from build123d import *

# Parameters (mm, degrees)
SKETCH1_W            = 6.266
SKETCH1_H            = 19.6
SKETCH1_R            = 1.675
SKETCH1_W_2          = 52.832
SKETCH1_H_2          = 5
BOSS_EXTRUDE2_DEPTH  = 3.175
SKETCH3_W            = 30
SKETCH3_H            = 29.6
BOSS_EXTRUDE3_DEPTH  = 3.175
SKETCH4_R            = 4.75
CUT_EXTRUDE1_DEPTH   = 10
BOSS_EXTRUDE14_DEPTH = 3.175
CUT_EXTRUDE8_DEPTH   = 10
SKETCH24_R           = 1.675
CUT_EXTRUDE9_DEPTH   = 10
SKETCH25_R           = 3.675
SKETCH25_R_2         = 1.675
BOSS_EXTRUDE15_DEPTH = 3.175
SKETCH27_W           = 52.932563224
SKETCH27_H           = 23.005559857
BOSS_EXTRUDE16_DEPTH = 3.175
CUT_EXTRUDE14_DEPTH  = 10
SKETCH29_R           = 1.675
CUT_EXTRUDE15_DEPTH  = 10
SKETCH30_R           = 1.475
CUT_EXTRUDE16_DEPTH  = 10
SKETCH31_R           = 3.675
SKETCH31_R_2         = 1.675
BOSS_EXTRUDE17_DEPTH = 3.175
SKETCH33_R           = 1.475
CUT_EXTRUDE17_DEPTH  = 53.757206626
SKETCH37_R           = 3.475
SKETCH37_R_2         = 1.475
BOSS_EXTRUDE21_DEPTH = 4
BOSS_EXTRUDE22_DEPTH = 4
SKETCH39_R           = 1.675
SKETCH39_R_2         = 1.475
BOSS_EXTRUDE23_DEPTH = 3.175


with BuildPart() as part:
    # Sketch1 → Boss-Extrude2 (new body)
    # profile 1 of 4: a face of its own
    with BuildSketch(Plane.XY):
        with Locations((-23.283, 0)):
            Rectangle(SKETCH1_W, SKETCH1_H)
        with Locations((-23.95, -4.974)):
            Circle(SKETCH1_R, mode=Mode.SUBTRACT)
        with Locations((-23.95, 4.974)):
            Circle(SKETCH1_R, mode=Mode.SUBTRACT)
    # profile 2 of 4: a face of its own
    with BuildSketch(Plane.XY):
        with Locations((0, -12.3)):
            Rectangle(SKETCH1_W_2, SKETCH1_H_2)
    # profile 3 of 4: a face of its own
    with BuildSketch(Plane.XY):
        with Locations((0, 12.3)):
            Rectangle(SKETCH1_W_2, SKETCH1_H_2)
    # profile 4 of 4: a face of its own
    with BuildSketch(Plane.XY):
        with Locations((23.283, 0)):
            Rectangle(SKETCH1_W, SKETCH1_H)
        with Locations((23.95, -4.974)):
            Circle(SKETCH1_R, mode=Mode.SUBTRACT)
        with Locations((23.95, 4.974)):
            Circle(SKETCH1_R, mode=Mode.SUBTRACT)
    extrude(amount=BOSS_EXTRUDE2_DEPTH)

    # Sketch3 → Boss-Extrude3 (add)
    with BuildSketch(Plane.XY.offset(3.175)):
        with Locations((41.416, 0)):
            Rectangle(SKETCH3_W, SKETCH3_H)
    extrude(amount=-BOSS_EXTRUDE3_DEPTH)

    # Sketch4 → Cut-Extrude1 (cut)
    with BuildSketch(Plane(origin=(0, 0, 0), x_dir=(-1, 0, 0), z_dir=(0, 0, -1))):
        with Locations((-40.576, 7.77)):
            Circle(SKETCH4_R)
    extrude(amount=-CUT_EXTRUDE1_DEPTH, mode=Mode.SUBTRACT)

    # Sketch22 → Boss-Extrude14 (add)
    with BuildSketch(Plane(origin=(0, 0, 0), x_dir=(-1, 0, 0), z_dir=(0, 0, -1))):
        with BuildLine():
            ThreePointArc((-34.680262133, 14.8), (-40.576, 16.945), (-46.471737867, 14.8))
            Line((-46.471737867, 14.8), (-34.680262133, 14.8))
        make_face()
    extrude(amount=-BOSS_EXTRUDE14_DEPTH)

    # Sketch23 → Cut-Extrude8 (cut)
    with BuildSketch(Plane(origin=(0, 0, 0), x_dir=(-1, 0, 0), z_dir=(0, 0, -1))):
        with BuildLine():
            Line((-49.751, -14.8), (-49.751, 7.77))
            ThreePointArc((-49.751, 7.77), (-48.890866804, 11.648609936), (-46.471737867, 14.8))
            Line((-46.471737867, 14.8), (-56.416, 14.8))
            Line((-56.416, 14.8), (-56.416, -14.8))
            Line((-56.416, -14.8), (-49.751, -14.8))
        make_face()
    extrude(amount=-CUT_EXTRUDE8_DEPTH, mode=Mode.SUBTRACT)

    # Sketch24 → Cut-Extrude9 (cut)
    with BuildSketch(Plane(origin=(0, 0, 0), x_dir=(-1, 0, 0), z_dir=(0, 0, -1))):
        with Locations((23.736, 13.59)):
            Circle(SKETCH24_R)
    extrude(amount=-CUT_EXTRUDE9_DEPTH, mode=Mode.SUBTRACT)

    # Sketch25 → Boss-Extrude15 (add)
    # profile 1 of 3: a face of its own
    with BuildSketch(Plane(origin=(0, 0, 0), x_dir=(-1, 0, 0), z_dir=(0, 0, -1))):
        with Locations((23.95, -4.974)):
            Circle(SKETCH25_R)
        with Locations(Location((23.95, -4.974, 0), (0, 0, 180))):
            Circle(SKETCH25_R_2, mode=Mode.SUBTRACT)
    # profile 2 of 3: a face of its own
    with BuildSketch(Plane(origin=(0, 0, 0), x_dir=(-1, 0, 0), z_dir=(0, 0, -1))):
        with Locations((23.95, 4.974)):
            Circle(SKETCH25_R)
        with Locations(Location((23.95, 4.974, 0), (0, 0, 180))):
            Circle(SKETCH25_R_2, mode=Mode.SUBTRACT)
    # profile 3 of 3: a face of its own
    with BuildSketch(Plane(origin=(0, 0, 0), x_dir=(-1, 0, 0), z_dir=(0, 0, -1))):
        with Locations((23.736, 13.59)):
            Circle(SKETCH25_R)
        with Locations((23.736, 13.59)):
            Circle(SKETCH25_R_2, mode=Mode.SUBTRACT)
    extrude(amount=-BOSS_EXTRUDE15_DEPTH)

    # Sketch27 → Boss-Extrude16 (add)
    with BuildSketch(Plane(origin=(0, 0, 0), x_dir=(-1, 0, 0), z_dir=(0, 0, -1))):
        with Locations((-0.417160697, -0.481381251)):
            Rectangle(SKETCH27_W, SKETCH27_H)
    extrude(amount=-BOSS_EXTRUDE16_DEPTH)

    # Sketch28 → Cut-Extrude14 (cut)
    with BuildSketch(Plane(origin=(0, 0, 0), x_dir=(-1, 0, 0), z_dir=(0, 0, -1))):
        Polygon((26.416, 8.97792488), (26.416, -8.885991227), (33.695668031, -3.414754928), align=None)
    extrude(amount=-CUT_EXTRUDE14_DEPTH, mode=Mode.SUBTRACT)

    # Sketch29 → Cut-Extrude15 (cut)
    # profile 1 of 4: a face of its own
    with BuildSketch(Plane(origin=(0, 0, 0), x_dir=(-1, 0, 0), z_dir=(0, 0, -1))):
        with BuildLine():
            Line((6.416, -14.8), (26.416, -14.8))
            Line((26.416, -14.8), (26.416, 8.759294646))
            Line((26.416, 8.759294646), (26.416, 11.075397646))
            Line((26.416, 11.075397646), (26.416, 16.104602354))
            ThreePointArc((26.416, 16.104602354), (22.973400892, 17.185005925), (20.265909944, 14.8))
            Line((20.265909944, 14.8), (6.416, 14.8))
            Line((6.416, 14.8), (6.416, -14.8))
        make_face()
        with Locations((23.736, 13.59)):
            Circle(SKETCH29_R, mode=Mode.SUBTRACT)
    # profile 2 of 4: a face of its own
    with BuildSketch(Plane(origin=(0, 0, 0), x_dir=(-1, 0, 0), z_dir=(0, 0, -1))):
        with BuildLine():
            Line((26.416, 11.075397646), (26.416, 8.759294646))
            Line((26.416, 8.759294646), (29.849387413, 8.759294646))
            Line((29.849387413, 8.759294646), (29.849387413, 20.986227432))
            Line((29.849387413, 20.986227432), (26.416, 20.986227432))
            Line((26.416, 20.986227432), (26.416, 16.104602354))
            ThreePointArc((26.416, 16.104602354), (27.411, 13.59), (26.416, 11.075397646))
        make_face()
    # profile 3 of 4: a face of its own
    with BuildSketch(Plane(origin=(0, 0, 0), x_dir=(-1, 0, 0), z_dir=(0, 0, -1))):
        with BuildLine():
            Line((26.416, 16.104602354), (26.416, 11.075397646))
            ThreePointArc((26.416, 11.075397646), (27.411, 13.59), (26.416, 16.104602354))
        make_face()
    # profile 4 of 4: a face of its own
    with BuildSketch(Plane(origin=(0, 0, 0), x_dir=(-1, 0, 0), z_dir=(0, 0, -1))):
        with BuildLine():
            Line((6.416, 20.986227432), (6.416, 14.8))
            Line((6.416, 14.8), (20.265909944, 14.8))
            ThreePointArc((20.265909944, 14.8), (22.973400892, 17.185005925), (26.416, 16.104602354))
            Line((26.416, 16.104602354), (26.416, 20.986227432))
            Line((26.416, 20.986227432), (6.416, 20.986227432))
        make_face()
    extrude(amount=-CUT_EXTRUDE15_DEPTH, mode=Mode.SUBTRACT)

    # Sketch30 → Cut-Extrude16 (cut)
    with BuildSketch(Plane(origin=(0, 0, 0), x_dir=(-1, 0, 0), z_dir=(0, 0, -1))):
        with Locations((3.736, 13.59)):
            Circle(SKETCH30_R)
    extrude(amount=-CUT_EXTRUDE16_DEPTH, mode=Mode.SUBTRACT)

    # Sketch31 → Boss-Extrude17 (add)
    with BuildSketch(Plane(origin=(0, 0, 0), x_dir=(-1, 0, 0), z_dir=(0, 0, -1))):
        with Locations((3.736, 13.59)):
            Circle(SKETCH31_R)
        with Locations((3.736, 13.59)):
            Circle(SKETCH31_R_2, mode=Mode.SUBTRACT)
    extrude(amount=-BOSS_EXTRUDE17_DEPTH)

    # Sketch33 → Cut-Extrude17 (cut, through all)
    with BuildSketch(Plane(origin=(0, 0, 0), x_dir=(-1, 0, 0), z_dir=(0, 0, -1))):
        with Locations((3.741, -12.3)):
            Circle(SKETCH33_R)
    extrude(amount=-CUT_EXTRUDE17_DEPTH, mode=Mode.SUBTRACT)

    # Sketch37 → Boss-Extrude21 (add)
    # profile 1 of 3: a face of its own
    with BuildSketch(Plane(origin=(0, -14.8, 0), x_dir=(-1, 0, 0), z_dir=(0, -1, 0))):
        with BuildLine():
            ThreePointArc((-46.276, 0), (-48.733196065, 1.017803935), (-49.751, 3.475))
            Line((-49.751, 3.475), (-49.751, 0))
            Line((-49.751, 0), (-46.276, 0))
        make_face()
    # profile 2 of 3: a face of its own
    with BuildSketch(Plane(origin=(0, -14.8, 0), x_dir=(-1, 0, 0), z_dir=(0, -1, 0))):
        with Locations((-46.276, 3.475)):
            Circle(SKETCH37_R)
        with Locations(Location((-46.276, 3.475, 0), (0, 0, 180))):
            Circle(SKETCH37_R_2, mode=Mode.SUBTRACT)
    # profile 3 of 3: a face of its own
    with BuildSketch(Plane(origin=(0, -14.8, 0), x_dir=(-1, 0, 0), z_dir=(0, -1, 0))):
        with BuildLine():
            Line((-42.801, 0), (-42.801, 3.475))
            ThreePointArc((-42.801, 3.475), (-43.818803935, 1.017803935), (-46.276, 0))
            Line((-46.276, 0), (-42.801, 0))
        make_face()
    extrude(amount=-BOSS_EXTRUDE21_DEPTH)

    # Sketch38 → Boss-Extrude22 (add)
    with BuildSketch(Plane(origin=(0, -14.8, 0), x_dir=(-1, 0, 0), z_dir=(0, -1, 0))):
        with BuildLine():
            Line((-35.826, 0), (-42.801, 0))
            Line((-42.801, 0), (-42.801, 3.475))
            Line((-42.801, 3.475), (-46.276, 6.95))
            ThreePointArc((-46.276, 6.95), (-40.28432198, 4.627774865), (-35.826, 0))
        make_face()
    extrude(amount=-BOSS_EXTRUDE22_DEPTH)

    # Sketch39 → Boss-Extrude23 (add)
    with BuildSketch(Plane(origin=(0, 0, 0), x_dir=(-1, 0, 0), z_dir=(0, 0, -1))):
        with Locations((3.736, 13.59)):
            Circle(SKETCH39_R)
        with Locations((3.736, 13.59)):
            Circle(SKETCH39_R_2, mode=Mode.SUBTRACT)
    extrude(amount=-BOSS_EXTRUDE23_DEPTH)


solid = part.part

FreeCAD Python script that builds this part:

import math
import FreeCAD as App
import Part
import Sketcher

V = App.Vector
Q = App.Units.Quantity

doc = App.newDocument("Part")
params = doc.addObject("Spreadsheet::Sheet", "Params")
for row, (alias, value) in enumerate([
    ("sketch1_diameter", "3.35 mm"),
    ("sketch1_width", "40.3 mm"),
    ("sketch1_height", "29.6 mm"),
    ("sketch1_height2", "19.6 mm"),
    ("pad1_length", "3.175 mm"),
    ("sketch2_width", "30 mm"),
    ("sketch2_height", "29.6 mm"),
    ("pad2_length", "3.175 mm"),
    ("sketch3_diameter", "9.5 mm"),
    ("pocket1_length", "10 mm"),
    ("pad3_length", "3.175 mm"),
    ("sketch5_height", "29.6 mm"),
    ("sketch5_height2", "22.57 mm"),
    ("pocket2_length", "10 mm"),
    ("sketch6_diameter", "3.35 mm"),
    ("pocket3_length", "10 mm"),
    ("sketch7_diameter", "7.35 mm"),
    ("sketch7_diameter2", "3.35 mm"),
    ("pad4_length", "3.175 mm"),
    ("pad5_length", "3.175 mm"),
    ("pocket4_length", "10 mm"),
    ("sketch10_diameter", "3.35 mm"),
    ("sketch10_width", "20 mm"),
    ("pocket5_length", "10 mm"),
    ("sketch11_diameter", "2.95 mm"),
    ("pocket6_length", "10 mm"),
    ("sketch12_diameter", "7.35 mm"),
    ("sketch12_diameter2", "3.35 mm"),
    ("pad6_length", "3.175 mm"),
    ("sketch13_diameter", "2.95 mm"),
    ("sketch14_diameter", "2.95 mm"),
    ("pad7_length", "4 mm"),
    ("pad8_length", "4 mm"),
    ("sketch16_diameter", "3.35 mm"),
    ("sketch16_diameter2", "2.95 mm"),
    ("pad9_length", "3.175 mm"),
], start=1):
    params.set(f"A{row}", alias)
    params.set(f"B{row}", "=" + value)
    params.setAlias(f"B{row}", alias)

body = doc.addObject("PartDesign::Body", "Body")

# Sketch on XY plane
sketch1 = body.newObject("Sketcher::SketchObject", "Sketch")
sketch1.AttachmentSupport = (doc.getObject("XY_Plane"), [""])
sketch1.MapMode = "FlatFace"
sketch1.addGeometry([
    Part.LineSegment(V(-26.4, -14.8, 0), V(26.4, -14.8, 0)),  # 0
    Part.LineSegment(V(26.4, -14.8, 0), V(26.4, 14.8, 0)),  # 1
    Part.LineSegment(V(26.4, 14.8, 0), V(-26.4, 14.8, 0)),  # 2
    Part.LineSegment(V(-26.4, 14.8, 0), V(-26.4, -14.8, 0)),  # 3
    Part.LineSegment(V(-20.1, -9.8, 0), V(-20.1, 9.8, 0)),  # 4
    Part.LineSegment(V(-20.1, 9.8, 0), V(20.1, 9.8, 0)),  # 5
    Part.LineSegment(V(20.1, 9.8, 0), V(20.1, -9.8, 0)),  # 6
    Part.LineSegment(V(20.1, -9.8, 0), V(-20.1, -9.8, 0)),  # 7
    Part.Circle(V(-23.9, -5, 0), V(0, 0, 1), 1.7),  # 8
    Part.Circle(V(-23.9, 5, 0), V(0, 0, 1), 1.7),  # 9
    Part.Circle(V(23.9, 5, 0), V(0, 0, 1), 1.7),  # 10
    Part.Circle(V(23.9, -5, 0), V(0, 0, 1), 1.7),  # 11
], False)
sketch1.addConstraint([
    Sketcher.Constraint("Coincident", 0, 2, 1, 1),
    Sketcher.Constraint("Coincident", 1, 2, 2, 1),
    Sketcher.Constraint("Coincident", 2, 2, 3, 1),
    Sketcher.Constraint("Coincident", 3, 2, 0, 1),
    Sketcher.Constraint("Coincident", 4, 2, 5, 1),
    Sketcher.Constraint("Coincident", 5, 2, 6, 1),
    Sketcher.Constraint("Coincident", 6, 2, 7, 1),
    Sketcher.Constraint("Coincident", 7, 2, 4, 1),
    Sketcher.Constraint("Horizontal", 0),
    Sketcher.Constraint("Vertical", 1),
    Sketcher.Constraint("Horizontal", 2),
    Sketcher.Constraint("Vertical", 3),
    Sketcher.Constraint("Vertical", 4),
    Sketcher.Constraint("Horizontal", 5),
    Sketcher.Constraint("Vertical", 6),
    Sketcher.Constraint("Horizontal", 7),
    Sketcher.Constraint("Equal", 8, 9),
    Sketcher.Constraint("Equal", 9, 10),
    Sketcher.Constraint("Equal", 10, 11),
    Sketcher.Constraint("Symmetric", 8, 3, 10, 3, -1, 1),
    Sketcher.Constraint("Symmetric", 9, 3, 11, 3, -1, 1),
    Sketcher.Constraint("Symmetric", 0, 2, 2, 2, -1, 1),
    Sketcher.Constraint("Symmetric", 4, 2, 6, 2, -1, 1),
    Sketcher.Constraint("Symmetric", 9, 3, 10, 3, -2),
    Sketcher.Constraint("Diameter", 8, Q("3.35 mm")),
    Sketcher.Constraint("DistanceX", 5, 1, 5, 2, Q("40.3 mm")),
    Sketcher.Constraint("DistanceY", 1, 1, 1, 2, Q("29.6 mm")),
    Sketcher.Constraint("DistanceY", 4, 1, 4, 2, Q("19.6 mm")),
    Sketcher.Constraint("DistanceX", 9, 3, 10, 3, Q("47.9 mm")),
    Sketcher.Constraint("DistanceX", 0, 1, 0, 2, Q("52.832 mm")),
    Sketcher.Constraint("DistanceY", 8, 3, -1, 1, Q("4.974 mm")),
])
sketch1.setExpression("Constraints[24]", "Params.sketch1_diameter")
sketch1.setExpression("Constraints[25]", "Params.sketch1_width")
sketch1.setExpression("Constraints[26]", "Params.sketch1_height")
sketch1.setExpression("Constraints[27]", "Params.sketch1_height2")
pad1 = body.newObject("PartDesign::Pad", "Pad")
pad1.Profile = sketch1
pad1.setExpression("Length", "Params.pad1_length")

# Sketch on XY plane
sketch2 = body.newObject("Sketcher::SketchObject", "Sketch001")
sketch2.AttachmentSupport = (doc.getObject("XY_Plane"), [""])
sketch2.MapMode = "FlatFace"
sketch2.AttachmentOffset = App.Placement(V(0, 0, 3.175), App.Rotation())
sketch2.addGeometry([
    Part.LineSegment(V(26, 15, 0), V(26, -15, 0)),
    Part.LineSegment(V(26, -15, 0), V(56, -15, 0)),
    Part.LineSegment(V(56, -15, 0), V(56, 15, 0)),
    Part.LineSegment(V(56, 15, 0), V(26, 15, 0)),
], False)
sketch2.addConstraint([
    Sketcher.Constraint("Coincident", 0, 2, 1, 1),
    Sketcher.Constraint("Coincident", 1, 2, 2, 1),
    Sketcher.Constraint("Coincident", 2, 2, 3, 1),
    Sketcher.Constraint("Coincident", 3, 2, 0, 1),
    Sketcher.Constraint("Vertical", 0),
    Sketcher.Constraint("Horizontal", 1),
    Sketcher.Constraint("Vertical", 2),
    Sketcher.Constraint("Horizontal", 3),
    Sketcher.Constraint("DistanceX", 1, 1, 1, 2, Q("30 mm")),
    Sketcher.Constraint("DistanceY", 0, 2, 0, 1, Q("29.6 mm")),
    Sketcher.Constraint("DistanceY", 0, 2, -1, 1, Q("14.8 mm")),
    Sketcher.Constraint("DistanceX", -1, 1, 0, 2, Q("26.416 mm")),
])
sketch2.setExpression("Constraints[8]", "Params.sketch2_width")
sketch2.setExpression("Constraints[9]", "Params.sketch2_height")
pad2 = body.newObject("PartDesign::Pad", "Pad001")
pad2.Profile = sketch2
pad2.setExpression("Length", "Params.pad2_length")
pad2.Reversed = True

# Sketch on XY plane
sketch3 = body.newObject("Sketcher::SketchObject", "Sketch002")
sketch3.AttachmentSupport = (doc.getObject("XY_Plane"), [""])
sketch3.MapMode = "FlatFace"
sketch3.addGeometry(Part.Circle(V(40.6, 7.8, 0), V(0, 0, 1), 4.8), False)
sketch3.addConstraint([
    Sketcher.Constraint("Diameter", 0, Q("9.5 mm")),
    Sketcher.Constraint("DistanceY", -1, 1, 0, 3, Q("7.77 mm")),
    Sketcher.Constraint("DistanceX", -1, 1, 0, 3, Q("40.576 mm")),
])
sketch3.setExpression("Constraints[0]", "Params.sketch3_diameter")
pocket1 = body.newObject("PartDesign::Pocket", "Pocket")
pocket1.Profile = sketch3
pocket1.setExpression("Length", "Params.pocket1_length")
pocket1.Reversed = True

# Sketch on XY plane
sketch4 = body.newObject("Sketcher::SketchObject", "Sketch003")
sketch4.AttachmentSupport = (doc.getObject("XY_Plane"), [""])
sketch4.MapMode = "FlatFace"
sketch4.addGeometry([
    Part.ArcOfCircle(Part.Circle(V(41, 8, 0), V(0, 0, 1), 9), math.radians(50), math.radians(130)),
    Part.LineSegment(V(46, 15, 0), V(35, 15, 0)),
], False)
sketch4.addConstraint([
    Sketcher.Constraint("Coincident", 0, 1, 1, 1),
    Sketcher.Constraint("Coincident", 1, 2, 0, 2),
    Sketcher.Constraint("Horizontal", 1),
    Sketcher.Constraint("Radius", 0, Q("9.175 mm")),
    Sketcher.Constraint("DistanceY", -1, 1, 0, 1, Q("14.8 mm")),
    Sketcher.Constraint("DistanceY", -1, 1, 0, 3, Q("7.77 mm")),
    Sketcher.Constraint("DistanceX", -1, 1, 0, 3, Q("40.576 mm")),
])
pad3 = body.newObject("PartDesign::Pad", "Pad002")
pad3.Profile = sketch4
pad3.setExpression("Length", "Params.pad3_length")

# Sketch on XY plane
sketch5 = body.newObject("Sketcher::SketchObject", "Sketch004")
sketch5.AttachmentSupport = (doc.getObject("XY_Plane"), [""])
sketch5.MapMode = "FlatFace"
sketch5.addGeometry([
    Part.LineSegment(V(50, -15, 0), V(50, 8, 0)),  # 0
    Part.ArcOfCircle(Part.Circle(V(41, 8, 0), V(0, 0, 1), 9), math.radians(0), math.radians(50)),  # 1
    Part.LineSegment(V(46, 15, 0), V(56, 15, 0)),  # 2
    Part.LineSegment(V(56, 15, 0), V(56, -15, 0)),  # 3
    Part.LineSegment(V(56, -15, 0), V(50, -15, 0)),  # 4
], False)
sketch5.addConstraint([
    Sketcher.Constraint("Tangent", 0, 2, 1, 1),
    Sketcher.Constraint("Coincident", 1, 2, 2, 1),
    Sketcher.Constraint("Coincident", 2, 2, 3, 1),
    Sketcher.Constraint("Coincident", 3, 2, 4, 1),
    Sketcher.Constraint("Coincident", 4, 2, 0, 1),
    Sketcher.Constraint("Vertical", 0),
    Sketcher.Constraint("Horizontal", 2),
    Sketcher.Constraint("Vertical", 3),
    Sketcher.Constraint("Horizontal", 4),
    Sketcher.Constraint("DistanceY", 3, 2, 3, 1, Q("29.6 mm")),
    Sketcher.Constraint("Radius", 1, Q("9.175 mm")),
    Sketcher.Constraint("DistanceY", 0, 1, 0, 2, Q("22.57 mm")),
    Sketcher.Constraint("DistanceY", -1, 1, 1, 2, Q("14.8 mm")),
    Sketcher.Constraint("DistanceX", 4, 2, 4, 1, Q("6.665 mm")),
    Sketcher.Constraint("DistanceX", -1, 1, 1, 3, Q("40.576 mm")),
])
sketch5.setExpression("Constraints[9]", "Params.sketch5_height")
sketch5.setExpression("Constraints[11]", "Params.sketch5_height2")
pocket2 = body.newObject("PartDesign::Pocket", "Pocket001")
pocket2.Profile = sketch5
pocket2.setExpression("Length", "Params.pocket2_length")
pocket2.Reversed = True

# Sketch on XY plane
sketch6 = body.newObject("Sketcher::SketchObject", "Sketch005")
sketch6.AttachmentSupport = (doc.getObject("XY_Plane"), [""])
sketch6.MapMode = "FlatFace"
sketch6.addGeometry(Part.Circle(V(-23.7, 13.6, 0), V(0, 0, 1), 1.7), False)
sketch6.addConstraint([
    Sketcher.Constraint("Diameter", 0, Q("3.35 mm")),
    Sketcher.Constraint("DistanceY", -1, 1, 0, 3, Q("13.59 mm")),
    Sketcher.Constraint("DistanceX", 0, 3, -1, 1, Q("23.736 mm")),
])
sketch6.setExpression("Constraints[0]", "Params.sketch6_diameter")
pocket3 = body.newObject("PartDesign::Pocket", "Pocket002")
pocket3.Profile = sketch6
pocket3.setExpression("Length", "Params.pocket3_length")
pocket3.Reversed = True

# Sketch on XY plane
sketch7 = body.newObject("Sketcher::SketchObject", "Sketch006")
sketch7.AttachmentSupport = (doc.getObject("XY_Plane"), [""])
sketch7.MapMode = "FlatFace"
sketch7.addGeometry([
    Part.Circle(V(-23.9, -5, 0), V(0, 0, 1), 3.7),  # 0
    Part.Circle(V(-23.9, -5, 0), V(0, 0, 1), 1.7),  # 1
    Part.Circle(V(-23.9, 5, 0), V(0, 0, 1), 3.7),  # 2
    Part.Circle(V(-23.9, 5, 0), V(0, 0, 1), 1.7),  # 3
    Part.Circle(V(-23.7, 13.6, 0), V(0, 0, 1), 3.7),  # 4
    Part.Circle(V(-23.7, 13.6, 0), V(0, 0, 1), 1.7),  # 5
], False)
sketch7.addConstraint([
    Sketcher.Constraint("Coincident", 1, 3, 0, 3),
    Sketcher.Constraint("Coincident", 3, 3, 2, 3),
    Sketcher.Constraint("Coincident", 5, 3, 4, 3),
    Sketcher.Constraint("Equal", 0, 2),
    Sketcher.Constraint("Equal", 1, 3),
    Sketcher.Constraint("Equal", 2, 4),
    Sketcher.Constraint("Equal", 3, 5),
    Sketcher.Constraint("Symmetric", 0, 3, 2, 3, -1),
    Sketcher.Constraint("Diameter", 0, Q("7.35 mm")),
    Sketcher.Constraint("Diameter", 1, Q("3.35 mm")),
    Sketcher.Constraint("DistanceX", 0, 3, -1, 1, Q("23.95 mm")),
    Sketcher.Constraint("DistanceY", -1, 1, 4, 3, Q("13.59 mm")),
    Sketcher.Constraint("DistanceY", 0, 3, -1, 1, Q("4.974 mm")),
    Sketcher.Constraint("DistanceX", 4, 3, -1, 1, Q("23.736 mm")),
])
sketch7.setExpression("Constraints[8]", "Params.sketch7_diameter")
sketch7.setExpression("Constraints[9]", "Params.sketch7_diameter2")
pad4 = body.newObject("PartDesign::Pad", "Pad003")
pad4.Profile = sketch7
pad4.setExpression("Length", "Params.pad4_length")

# Sketch on XY plane
sketch8 = body.newObject("Sketcher::SketchObject", "Sketch007")
sketch8.AttachmentSupport = (doc.getObject("XY_Plane"), [""])
sketch8.MapMode = "FlatFace"
sketch8.addGeometry([
    Part.LineSegment(V(27, 11, 0), V(27, -12, 0)),
    Part.LineSegment(V(27, -12, 0), V(-26, -12, 0)),
    Part.LineSegment(V(-26, -12, 0), V(-26, 11, 0)),
    Part.LineSegment(V(-26, 11, 0), V(27, 11, 0)),
], False)
sketch8.addConstraint([
    Sketcher.Constraint("Coincident", 0, 2, 1, 1),
    Sketcher.Constraint("Coincident", 1, 2, 2, 1),
    Sketcher.Constraint("Coincident", 2, 2, 3, 1),
    Sketcher.Constraint("Coincident", 3, 2, 0, 1),
    Sketcher.Constraint("Vertical", 0),
    Sketcher.Constraint("Horizontal", 1),
    Sketcher.Constraint("Vertical", 2),
    Sketcher.Constraint("Horizontal", 3),
    Sketcher.Constraint("DistanceY", 0, 2, 0, 1, Q("23.00556 mm")),
    Sketcher.Constraint("DistanceY", -1, 1, 2, 2, Q("11.021399 mm")),
    Sketcher.Constraint("DistanceX", 1, 2, 1, 1, Q("52.932563 mm")),
    Sketcher.Constraint("DistanceX", 1, 2, -1, 1, Q("26.049121 mm")),
])
pad5 = body.newObject("PartDesign::Pad", "Pad004")
pad5.Profile = sketch8
pad5.setExpression("Length", "Params.pad5_length")

# Sketch on XY plane
sketch9 = body.newObject("Sketcher::SketchObject", "Sketch008")
sketch9.AttachmentSupport = (doc.getObject("XY_Plane"), [""])
sketch9.MapMode = "FlatFace"
sketch9.addGeometry([
    Part.LineSegment(V(-26, 9, 0), V(-26, -9, 0)),
    Part.LineSegment(V(-26, -9, 0), V(-34, -3, 0)),
    Part.LineSegment(V(-34, -3, 0), V(-26, 9, 0)),
], False)
sketch9.addConstraint([
    Sketcher.Constraint("Coincident", 0, 2, 1, 1),
    Sketcher.Constraint("Coincident", 1, 2, 2, 1),
    Sketcher.Constraint("Coincident", 2, 2, 0, 1),
    Sketcher.Constraint("Vertical", 0),
    Sketcher.Constraint("DistanceX", 0, 2, -1, 1, Q("26.416 mm")),
    Sketcher.Constraint("Distance", 1, Q("9.106481 mm")),
    Sketcher.Constraint("DistanceY", 0, 2, 0, 1, Q("17.863916 mm")),
    Sketcher.Constraint("DistanceY", 0, 2, -1, 1, Q("8.885991 mm")),
    Sketcher.Constraint("DistanceX", 1, 2, -1, 1, Q("33.695668 mm")),
])
pocket4 = body.newObject("PartDesign::Pocket", "Pocket003")
pocket4.Profile = sketch9
pocket4.setExpression("Length", "Params.pocket4_length")
pocket4.Reversed = True

# Sketch on XY plane
sketch10 = body.newObject("Sketcher::SketchObject", "Sketch009")
sketch10.AttachmentSupport = (doc.getObject("XY_Plane"), [""])
sketch10.MapMode = "FlatFace"
sketch10.addGeometry([
    Part.LineSegment(V(-6.4, -14.8, 0), V(-26.4, -14.8, 0)),  # 0
    Part.LineSegment(V(-26.4, -14.8, 0), V(-26.4, 8.8, 0)),  # 1
    Part.LineSegment(V(-26.4, 8.8, 0), V(-29.8, 8.8, 0)),  # 2
    Part.LineSegment(V(-29.8, 8.8, 0), V(-29.8, 21, 0)),  # 3
    Part.LineSegment(V(-29.8, 21, 0), V(-6.4, 21, 0)),  # 4
    Part.LineSegment(V(-6.4, 21, 0), V(-6.4, -14.8, 0)),  # 5
    Part.Circle(V(-23.7, 13.6, 0), V(0, 0, 1), 1.7),  # 6
], False)
sketch10.addConstraint([
    Sketcher.Constraint("Coincident", 0, 2, 1, 1),
    Sketcher.Constraint("Coincident", 1, 2, 2, 1),
    Sketcher.Constraint("Coincident", 2, 2, 3, 1),
    Sketcher.Constraint("Coincident", 3, 2, 4, 1),
    Sketcher.Constraint("Coincident", 4, 2, 5, 1),
    Sketcher.Constraint("Coincident", 5, 2, 0, 1),
    Sketcher.Constraint("Horizontal", 0),
    Sketcher.Constraint("Vertical", 1),
    Sketcher.Constraint("Horizontal", 2),
    Sketcher.Constraint("Vertical", 3),
    Sketcher.Constraint("Horizontal", 4),
    Sketcher.Constraint("Vertical", 5),
    Sketcher.Constraint("Diameter", 6, Q("3.35 mm")),
    Sketcher.Constraint("DistanceX", 0, 2, 0, 1, Q("20 mm")),
    Sketcher.Constraint("DistanceY", 0, 2, -1, 1, Q("14.8 mm")),
    Sketcher.Constraint("DistanceY", -1, 1, 6, 3, Q("13.59 mm")),
    Sketcher.Constraint("DistanceX", 0, 2, 6, 3, Q("2.68 mm")),
    Sketcher.Constraint("DistanceX", 6, 3, -1, 1, Q("23.736 mm")),
    Sketcher.Constraint("DistanceX", 2, 2, 2, 1, Q("3.433387 mm")),
    Sketcher.Constraint("DistanceY", 1, 1, 1, 2, Q("23.559295 mm")),
    Sketcher.Constraint("DistanceY", 3, 1, 3, 2, Q("12.226933 mm")),
])
sketch10.setExpression("Constraints[12]", "Params.sketch10_diameter")
sketch10.setExpression("Constraints[13]", "Params.sketch10_width")
pocket5 = body.newObject("PartDesign::Pocket", "Pocket004")
pocket5.Profile = sketch10
pocket5.setExpression("Length", "Params.pocket5_length")
pocket5.Reversed = True

# Sketch on XY plane
sketch11 = body.newObject("Sketcher::SketchObject", "Sketch010")
sketch11.AttachmentSupport = (doc.getObject("XY_Plane"), [""])
sketch11.MapMode = "FlatFace"
sketch11.addGeometry(Part.Circle(V(-3.7, 13.6, 0), V(0, 0, 1), 1.5), False)
sketch11.addConstraint([
    Sketcher.Constraint("Diameter", 0, Q("2.95 mm")),
    Sketcher.Constraint("DistanceY", -1, 1, 0, 3, Q("13.59 mm")),
    Sketcher.Constraint("DistanceX", 0, 3, -1, 1, Q("3.736 mm")),
])
sketch11.setExpression("Constraints[0]", "Params.sketch11_diameter")
pocket6 = body.newObject("PartDesign::Pocket", "Pocket005")
pocket6.Profile = sketch11
pocket6.setExpression("Length", "Params.pocket6_length")
pocket6.Reversed = True

# Sketch on XY plane
sketch12 = body.newObject("Sketcher::SketchObject", "Sketch011")
sketch12.AttachmentSupport = (doc.getObject("XY_Plane"), [""])
sketch12.MapMode = "FlatFace"
sketch12.addGeometry([
    Part.Circle(V(-3.7, 13.6, 0), V(0, 0, 1), 3.7),
    Part.Circle(V(-3.7, 13.6, 0), V(0, 0, 1), 1.7),
], False)
sketch12.addConstraint([
    Sketcher.Constraint("Coincident", 1, 3, 0, 3),
    Sketcher.Constraint("Diameter", 0, Q("7.35 mm")),
    Sketcher.Constraint("Diameter", 1, Q("3.35 mm")),
    Sketcher.Constraint("DistanceY", -1, 1, 0, 3, Q("13.59 mm")),
    Sketcher.Constraint("DistanceX", 0, 3, -1, 1, Q("3.736 mm")),
])
sketch12.setExpression("Constraints[1]", "Params.sketch12_diameter")
sketch12.setExpression("Constraints[2]", "Params.sketch12_diameter2")
pad6 = body.newObject("PartDesign::Pad", "Pad005")
pad6.Profile = sketch12
pad6.setExpression("Length", "Params.pad6_length")

# Sketch on XY plane
sketch13 = body.newObject("Sketcher::SketchObject", "Sketch012")
sketch13.AttachmentSupport = (doc.getObject("XY_Plane"), [""])
sketch13.MapMode = "FlatFace"
sketch13.addGeometry(Part.Circle(V(-3.7, -12.3, 0), V(0, 0, 1), 1.5), False)
sketch13.addConstraint([
    Sketcher.Constraint("Diameter", 0, Q("2.95 mm")),
    Sketcher.Constraint("DistanceY", 0, 3, -1, 1, Q("12.3 mm")),
    Sketcher.Constraint("DistanceX", 0, 3, -1, 1, Q("3.741 mm")),
])
sketch13.setExpression("Constraints[0]", "Params.sketch13_diameter")
pocket7 = body.newObject("PartDesign::Pocket", "Pocket006")
pocket7.Profile = sketch13
pocket7.Type = "ThroughAll"
pocket7.Reversed = True

# Sketch on XZ plane
sketch14 = body.newObject("Sketcher::SketchObject", "Sketch013")
sketch14.AttachmentSupport = (doc.getObject("XZ_Plane"), [""])
sketch14.MapMode = "FlatFace"
sketch14.AttachmentOffset = App.Placement(V(0, 0, 14.8), App.Rotation())
sketch14.addGeometry([
    Part.LineSegment(V(49.8, -3.5, 0), V(49.8, 0, 0)),  # 0
    Part.LineSegment(V(49.8, 0, 0), V(42.8, 0, 0)),  # 1
    Part.LineSegment(V(42.8, 0, 0), V(42.8, -3.5, 0)),  # 2
    Part.ArcOfCircle(Part.Circle(V(46.3, -3.5, 0), V(0, 0, 1), 3.5), math.radians(180), math.radians(360)),  # 3
    Part.Circle(V(46.3, -3.5, 0), V(0, 0, 1), 1.5),  # 4
], False)
sketch14.addConstraint([
    Sketcher.Constraint("Coincident", 0, 2, 1, 1),
    Sketcher.Constraint("Coincident", 1, 2, 2, 1),
    Sketcher.Constraint("Tangent", 2, 2, 3, 1),
    Sketcher.Constraint("Tangent", 3, 2, 0, 1),
    Sketcher.Constraint("Vertical", 0),
    Sketcher.Constraint("Horizontal", 1),
    Sketcher.Constraint("Vertical", 2),
    Sketcher.Constraint("Coincident", 4, 3, 3, 3),
    Sketcher.Constraint("PointOnObject", 0, 2, -1),
    Sketcher.Constraint("Diameter", 4, Q("2.95 mm")),
    Sketcher.Constraint("Radius", 3, Q("3.475 mm")),
    Sketcher.Constraint("DistanceY", 0, 1, 0, 2, Q("3.475 mm")),
    Sketcher.Constraint("DistanceX", -1, 1, 3, 3, Q("46.276 mm")),
])
sketch14.setExpression("Constraints[9]", "Params.sketch14_diameter")
pad7 = body.newObject("PartDesign::Pad", "Pad006")
pad7.Profile = sketch14
pad7.setExpression("Length", "Params.pad7_length")
pad7.Reversed = True

# Sketch on XZ plane
sketch15 = body.newObject("Sketcher::SketchObject", "Sketch014")
sketch15.AttachmentSupport = (doc.getObject("XZ_Plane"), [""])
sketch15.MapMode = "FlatFace"
sketch15.AttachmentOffset = App.Placement(V(0, 0, 14.8), App.Rotation())
sketch15.addGeometry([
    Part.LineSegment(V(42.8, 0, 0), V(35.8, 0, 0)),
    Part.ArcOfCircle(Part.Circle(V(48.5, 7.8, 0), V(0, 0, 1), 14.9), math.radians(-149), math.radians(-99)),
    Part.LineSegment(V(46.3, -7, 0), V(42.8, -3.5, 0)),
    Part.LineSegment(V(42.8, -3.5, 0), V(42.8, 0, 0)),
], False)
sketch15.addConstraint([
    Sketcher.Constraint("Coincident", 0, 2, 1, 1),
    Sketcher.Constraint("Coincident", 1, 2, 2, 1),
    Sketcher.Constraint("Coincident", 2, 2, 3, 1),
    Sketcher.Constraint("Coincident", 3, 2, 0, 1),
    Sketcher.Constraint("Horizontal", 0),
    Sketcher.Constraint("Vertical", 3),
    Sketcher.Constraint("PointOnObject", 0, 2, -1),
    Sketcher.Constraint("Angle", 2, Q("135 deg")),
    Sketcher.Constraint("DistanceX", 0, 2, 0, 1, Q("6.975 mm")),
    Sketcher.Constraint("DistanceY", 3, 1, 3, 2, Q("3.475 mm")),
    Sketcher.Constraint("DistanceY", 1, 2, -1, 1, Q("6.95 mm")),
    Sketcher.Constraint("DistanceX", -1, 1, 0, 2, Q("35.826 mm")),
    Sketcher.Constraint("Radius", 1, Q("14.913184 mm")),
])
pad8 = body.newObject("PartDesign::Pad", "Pad007")
pad8.Profile = sketch15
pad8.setExpression("Length", "Params.pad8_length")
pad8.Reversed = True

# Sketch on XY plane
sketch16 = body.newObject("Sketcher::SketchObject", "Sketch015")
sketch16.AttachmentSupport = (doc.getObject("XY_Plane"), [""])
sketch16.MapMode = "FlatFace"
sketch16.addGeometry([
    Part.Circle(V(-3.7, 13.6, 0), V(0, 0, 1), 1.7),
    Part.Circle(V(-3.7, 13.6, 0), V(0, 0, 1), 1.5),
], False)
sketch16.addConstraint([
    Sketcher.Constraint("Coincident", 1, 3, 0, 3),
    Sketcher.Constraint("Diameter", 0, Q("3.35 mm")),
    Sketcher.Constraint("Diameter", 1, Q("2.95 mm")),
    Sketcher.Constraint("DistanceY", -1, 1, 0, 3, Q("13.59 mm")),
    Sketcher.Constraint("DistanceX", 0, 3, -1, 1, Q("3.736 mm")),
])
sketch16.setExpression("Constraints[1]", "Params.sketch16_diameter")
sketch16.setExpression("Constraints[2]", "Params.sketch16_diameter2")
pad9 = body.newObject("PartDesign::Pad", "Pad008")
pad9.Profile = sketch16
pad9.setExpression("Length", "Params.pad9_length")

doc.recompute()
